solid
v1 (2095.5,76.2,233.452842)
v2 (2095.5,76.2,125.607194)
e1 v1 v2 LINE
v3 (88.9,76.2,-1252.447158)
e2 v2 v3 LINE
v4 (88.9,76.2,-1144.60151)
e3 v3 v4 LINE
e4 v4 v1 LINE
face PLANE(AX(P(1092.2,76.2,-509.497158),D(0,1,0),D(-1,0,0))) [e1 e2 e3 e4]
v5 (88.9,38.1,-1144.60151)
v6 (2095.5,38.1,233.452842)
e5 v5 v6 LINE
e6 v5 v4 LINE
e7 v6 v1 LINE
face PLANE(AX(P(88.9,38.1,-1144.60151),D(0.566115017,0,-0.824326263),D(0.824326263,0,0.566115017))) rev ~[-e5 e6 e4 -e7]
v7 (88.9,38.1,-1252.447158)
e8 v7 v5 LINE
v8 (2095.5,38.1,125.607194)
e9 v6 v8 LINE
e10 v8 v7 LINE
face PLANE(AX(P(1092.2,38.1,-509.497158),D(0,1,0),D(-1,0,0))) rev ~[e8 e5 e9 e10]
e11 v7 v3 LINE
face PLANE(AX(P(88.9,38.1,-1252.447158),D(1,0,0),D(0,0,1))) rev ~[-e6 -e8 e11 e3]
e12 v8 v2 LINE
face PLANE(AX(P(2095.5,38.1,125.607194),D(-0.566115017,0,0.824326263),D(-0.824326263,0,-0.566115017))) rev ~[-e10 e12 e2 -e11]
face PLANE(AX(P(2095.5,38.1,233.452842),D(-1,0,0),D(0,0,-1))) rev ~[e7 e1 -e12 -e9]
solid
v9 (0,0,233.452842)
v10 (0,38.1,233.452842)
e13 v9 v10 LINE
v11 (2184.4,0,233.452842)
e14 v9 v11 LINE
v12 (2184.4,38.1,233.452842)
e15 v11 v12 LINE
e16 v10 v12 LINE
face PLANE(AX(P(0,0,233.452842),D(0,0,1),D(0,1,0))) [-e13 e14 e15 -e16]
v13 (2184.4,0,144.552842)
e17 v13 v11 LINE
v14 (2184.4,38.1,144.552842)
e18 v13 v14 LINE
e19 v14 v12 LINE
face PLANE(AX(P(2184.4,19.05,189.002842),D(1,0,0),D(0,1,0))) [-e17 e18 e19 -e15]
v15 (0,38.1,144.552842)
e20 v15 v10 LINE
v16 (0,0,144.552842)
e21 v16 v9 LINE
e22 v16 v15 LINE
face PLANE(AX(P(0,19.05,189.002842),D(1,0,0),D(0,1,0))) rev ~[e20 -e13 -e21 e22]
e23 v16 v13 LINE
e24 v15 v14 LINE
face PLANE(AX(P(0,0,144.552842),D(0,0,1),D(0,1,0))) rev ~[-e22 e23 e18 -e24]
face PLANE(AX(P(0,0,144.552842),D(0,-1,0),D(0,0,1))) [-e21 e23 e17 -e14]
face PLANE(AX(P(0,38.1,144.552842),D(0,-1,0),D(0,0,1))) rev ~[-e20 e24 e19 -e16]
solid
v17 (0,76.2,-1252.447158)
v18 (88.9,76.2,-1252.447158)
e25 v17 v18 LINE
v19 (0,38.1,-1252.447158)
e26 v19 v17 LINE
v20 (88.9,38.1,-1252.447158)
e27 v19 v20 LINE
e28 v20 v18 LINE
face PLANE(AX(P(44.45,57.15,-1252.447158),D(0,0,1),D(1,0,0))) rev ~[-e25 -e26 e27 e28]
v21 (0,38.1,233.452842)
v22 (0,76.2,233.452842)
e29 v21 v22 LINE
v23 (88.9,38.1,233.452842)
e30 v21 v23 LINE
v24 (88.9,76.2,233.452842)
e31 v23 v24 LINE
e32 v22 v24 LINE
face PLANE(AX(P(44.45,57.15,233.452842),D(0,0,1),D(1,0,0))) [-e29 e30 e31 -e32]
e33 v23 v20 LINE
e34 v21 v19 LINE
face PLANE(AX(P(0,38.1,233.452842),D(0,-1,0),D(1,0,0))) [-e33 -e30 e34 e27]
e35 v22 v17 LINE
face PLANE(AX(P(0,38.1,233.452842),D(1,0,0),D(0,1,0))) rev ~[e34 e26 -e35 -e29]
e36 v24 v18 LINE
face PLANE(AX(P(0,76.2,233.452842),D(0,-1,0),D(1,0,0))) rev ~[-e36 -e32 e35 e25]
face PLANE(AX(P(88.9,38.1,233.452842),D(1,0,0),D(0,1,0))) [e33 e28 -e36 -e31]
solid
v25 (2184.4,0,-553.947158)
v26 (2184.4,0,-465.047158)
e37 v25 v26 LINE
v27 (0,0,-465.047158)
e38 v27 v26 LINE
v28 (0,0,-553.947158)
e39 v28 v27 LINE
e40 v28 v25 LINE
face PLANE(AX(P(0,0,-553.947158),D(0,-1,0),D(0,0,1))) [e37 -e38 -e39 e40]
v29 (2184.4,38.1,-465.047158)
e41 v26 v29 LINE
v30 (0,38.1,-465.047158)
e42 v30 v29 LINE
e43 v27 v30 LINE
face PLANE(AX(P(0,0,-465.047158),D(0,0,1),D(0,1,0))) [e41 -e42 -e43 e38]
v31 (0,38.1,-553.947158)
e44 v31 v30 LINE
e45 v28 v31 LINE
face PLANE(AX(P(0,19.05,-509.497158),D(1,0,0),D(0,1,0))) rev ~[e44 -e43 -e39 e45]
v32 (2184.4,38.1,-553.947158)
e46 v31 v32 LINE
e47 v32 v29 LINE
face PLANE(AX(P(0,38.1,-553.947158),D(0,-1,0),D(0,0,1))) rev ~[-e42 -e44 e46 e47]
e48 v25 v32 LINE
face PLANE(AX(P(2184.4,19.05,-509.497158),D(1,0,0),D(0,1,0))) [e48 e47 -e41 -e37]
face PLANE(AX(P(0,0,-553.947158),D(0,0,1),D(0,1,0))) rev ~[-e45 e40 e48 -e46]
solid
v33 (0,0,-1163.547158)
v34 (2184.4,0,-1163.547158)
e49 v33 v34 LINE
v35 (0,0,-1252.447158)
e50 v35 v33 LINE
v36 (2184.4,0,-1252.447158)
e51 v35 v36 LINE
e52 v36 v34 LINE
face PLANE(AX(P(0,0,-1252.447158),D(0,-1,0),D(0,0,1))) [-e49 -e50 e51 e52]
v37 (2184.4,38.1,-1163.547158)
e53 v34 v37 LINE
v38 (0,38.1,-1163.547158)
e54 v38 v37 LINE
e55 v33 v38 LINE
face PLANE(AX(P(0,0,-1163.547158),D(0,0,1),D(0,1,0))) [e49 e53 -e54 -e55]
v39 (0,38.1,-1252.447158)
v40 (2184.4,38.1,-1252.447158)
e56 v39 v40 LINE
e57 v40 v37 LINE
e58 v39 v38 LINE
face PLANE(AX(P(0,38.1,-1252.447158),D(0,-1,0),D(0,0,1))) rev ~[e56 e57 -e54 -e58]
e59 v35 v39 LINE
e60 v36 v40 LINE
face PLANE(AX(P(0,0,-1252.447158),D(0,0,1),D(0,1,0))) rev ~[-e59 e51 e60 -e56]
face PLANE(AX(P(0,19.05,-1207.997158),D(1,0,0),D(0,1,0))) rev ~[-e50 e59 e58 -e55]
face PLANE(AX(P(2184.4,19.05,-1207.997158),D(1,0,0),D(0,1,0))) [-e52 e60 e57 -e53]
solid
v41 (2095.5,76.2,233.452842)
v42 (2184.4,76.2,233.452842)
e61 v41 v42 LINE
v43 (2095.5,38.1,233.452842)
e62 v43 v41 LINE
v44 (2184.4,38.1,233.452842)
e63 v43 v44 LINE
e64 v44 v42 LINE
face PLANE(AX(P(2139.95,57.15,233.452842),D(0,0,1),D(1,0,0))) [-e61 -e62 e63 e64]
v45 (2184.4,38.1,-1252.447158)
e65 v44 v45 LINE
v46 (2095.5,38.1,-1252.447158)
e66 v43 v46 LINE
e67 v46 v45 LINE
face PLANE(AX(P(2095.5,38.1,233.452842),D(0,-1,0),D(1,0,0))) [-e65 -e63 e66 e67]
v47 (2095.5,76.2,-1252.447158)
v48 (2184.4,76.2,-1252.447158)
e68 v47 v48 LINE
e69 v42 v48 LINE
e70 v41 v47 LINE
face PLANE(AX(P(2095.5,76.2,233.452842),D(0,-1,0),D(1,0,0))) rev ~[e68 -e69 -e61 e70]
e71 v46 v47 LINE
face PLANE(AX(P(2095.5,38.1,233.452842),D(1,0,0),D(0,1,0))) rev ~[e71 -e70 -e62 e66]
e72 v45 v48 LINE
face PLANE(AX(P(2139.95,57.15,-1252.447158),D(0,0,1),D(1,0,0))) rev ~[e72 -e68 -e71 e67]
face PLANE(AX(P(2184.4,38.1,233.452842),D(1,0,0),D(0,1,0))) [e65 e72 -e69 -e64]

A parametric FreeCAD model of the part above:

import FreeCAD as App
import Part
import Sketcher
Q = App.Units.Quantity

doc = App.newDocument("Part")
body = doc.addObject("PartDesign::Body", "Body")
body.AllowCompound = True

# Sketch on YZ plane
sketch1 = body.newObject("Sketcher::SketchObject", "Sketch")
sketch1.AttachmentSupport = (doc.getObject("YZ_Plane"), [""])
sketch1.MapMode = "FlatFace"
sketch1.addGeometry([
    Part.LineSegment(App.Vector(0, 233, 0), App.Vector(0, 145, 0)),  # 0
    Part.LineSegment(App.Vector(0, 145, 0), App.Vector(38, 145, 0)),  # 1
    Part.LineSegment(App.Vector(38, 145, 0), App.Vector(38, 233, 0)),  # 2
    Part.LineSegment(App.Vector(38, 233, 0), App.Vector(0, 233, 0)),  # 3
    Part.LineSegment(App.Vector(0, -465, 0), App.Vector(0, -554, 0)),  # 4
    Part.LineSegment(App.Vector(0, -554, 0), App.Vector(38, -554, 0)),  # 5
    Part.LineSegment(App.Vector(38, -554, 0), App.Vector(38, -465, 0)),  # 6
    Part.LineSegment(App.Vector(38, -465, 0), App.Vector(0, -465, 0)),  # 7
    Part.LineSegment(App.Vector(0, -1164, 0), App.Vector(0, -1252, 0)),  # 8
    Part.LineSegment(App.Vector(0, -1252, 0), App.Vector(38, -1252, 0)),  # 9
    Part.LineSegment(App.Vector(38, -1252, 0), App.Vector(38, -1164, 0)),  # 10
    Part.LineSegment(App.Vector(38, -1164, 0), App.Vector(0, -1164, 0)),  # 11
], False)
sketch1.addConstraint([
    Sketcher.Constraint("Coincident", 0, 2, 1, 1),
    Sketcher.Constraint("Coincident", 1, 2, 2, 1),
    Sketcher.Constraint("Coincident", 2, 2, 3, 1),
    Sketcher.Constraint("Coincident", 3, 2, 0, 1),
    Sketcher.Constraint("Coincident", 4, 2, 5, 1),
    Sketcher.Constraint("Coincident", 5, 2, 6, 1),
    Sketcher.Constraint("Coincident", 6, 2, 7, 1),
    Sketcher.Constraint("Coincident", 7, 2, 4, 1),
    Sketcher.Constraint("Coincident", 8, 2, 9, 1),
    Sketcher.Constraint("Coincident", 9, 2, 10, 1),
    Sketcher.Constraint("Coincident", 10, 2, 11, 1),
    Sketcher.Constraint("Coincident", 11, 2, 8, 1),
    Sketcher.Constraint("Vertical", 0),
    Sketcher.Constraint("Horizontal", 1),
    Sketcher.Constraint("Vertical", 2),
    Sketcher.Constraint("Horizontal", 3),
    Sketcher.Constraint("Vertical", 4),
    Sketcher.Constraint("Horizontal", 5),
    Sketcher.Constraint("Vertical", 6),
    Sketcher.Constraint("Horizontal", 7),
    Sketcher.Constraint("Vertical", 8),
    Sketcher.Constraint("Horizontal", 9),
    Sketcher.Constraint("Vertical", 10),
    Sketcher.Constraint("Horizontal", 11),
    Sketcher.Constraint("PointOnObject", 0, 2, -2),
    Sketcher.Constraint("PointOnObject", 4, 2, -2),
    Sketcher.Constraint("PointOnObject", 8, 2, -2),
    Sketcher.Constraint("Vertical", 2, 2, 5, 2),
    Sketcher.Constraint("Vertical", 6, 2, 9, 2),
    Sketcher.Constraint("Equal", 2, 4),
    Sketcher.Constraint("Equal", 6, 8),
    Sketcher.Constraint("DistanceX", 1, 1, 1, 2, Q("1.5 in")),
    Sketcher.Constraint("DistanceY", 0, 2, 0, 1, Q("3.5 in")),
    Sketcher.Constraint("DistanceY", 4, 2, 3, 2, Q("31 in")),
    Sketcher.Constraint("DistanceY", 8, 2, 7, 2, Q("31 in")),
    Sketcher.Constraint("DistanceY", -1, 1, 0, 2, Q("144.552842 mm")),
])
pad1 = body.newObject("PartDesign::Pad", "Pad")
pad1.Profile = sketch1
pad1.Length = Q("86 in")
body2 = doc.addObject("PartDesign::Body", "Body001")
body2.AllowCompound = True

# Sketch on XY plane
sketch2 = body2.newObject("Sketcher::SketchObject", "Sketch001")
sketch2.AttachmentSupport = (doc.getObject("XY_Plane001"), [""])
sketch2.MapMode = "FlatFace"
sketch2.AttachmentOffset = App.Placement(App.Vector(0, 0, 233.452842), App.Rotation())
sketch2.addGeometry([
    Part.LineSegment(App.Vector(2096, 76, 0), App.Vector(2096, 38, 0)),  # 0
    Part.LineSegment(App.Vector(2096, 38, 0), App.Vector(2184, 38, 0)),  # 1
    Part.LineSegment(App.Vector(2184, 38, 0), App.Vector(2184, 76, 0)),  # 2
    Part.LineSegment(App.Vector(2184, 76, 0), App.Vector(2096, 76, 0)),  # 3
    Part.LineSegment(App.Vector(0, 76, 0), App.Vector(0, 38, 0)),  # 4
    Part.LineSegment(App.Vector(0, 38, 0), App.Vector(89, 38, 0)),  # 5
    Part.LineSegment(App.Vector(89, 38, 0), App.Vector(89, 76, 0)),  # 6
    Part.LineSegment(App.Vector(89, 76, 0), App.Vector(0, 76, 0)),  # 7
], False)
sketch2.addConstraint([
    Sketcher.Constraint("Coincident", 0, 2, 1, 1),
    Sketcher.Constraint("Coincident", 1, 2, 2, 1),
    Sketcher.Constraint("Coincident", 2, 2, 3, 1),
    Sketcher.Constraint("Coincident", 3, 2, 0, 1),
    Sketcher.Constraint("Coincident", 4, 2, 5, 1),
    Sketcher.Constraint("Coincident", 5, 2, 6, 1),
    Sketcher.Constraint("Coincident", 6, 2, 7, 1),
    Sketcher.Constraint("Coincident", 7, 2, 4, 1),
    Sketcher.Constraint("Vertical", 0),
    Sketcher.Constraint("Horizontal", 1),
    Sketcher.Constraint("Vertical", 2),
    Sketcher.Constraint("Horizontal", 3),
    Sketcher.Constraint("Vertical", 4),
    Sketcher.Constraint("Horizontal", 5),
    Sketcher.Constraint("Vertical", 6),
    Sketcher.Constraint("Horizontal", 7),
    Sketcher.Constraint("PointOnObject", 4, 2, -2),
    Sketcher.Constraint("Horizontal", 1, 2, 4, 2),
    Sketcher.Constraint("Horizontal", 3, 2, 6, 2),
    Sketcher.Constraint("Equal", 3, 5),
    Sketcher.Constraint("DistanceX", 1, 1, 1, 2, Q("3.5 in")),
    Sketcher.Constraint("DistanceY", 0, 2, 0, 1, Q("1.5 in")),
    Sketcher.Constraint("DistanceX", -1, 1, 1, 2, Q("86 in")),
    Sketcher.Constraint("DistanceY", -1, 1, 2, 2, Q("3 in")),
])
pad2 = body2.newObject("PartDesign::Pad", "Pad001")
pad2.Profile = sketch2
pad2.Length = Q("58.5 in")
pad2.Reversed = True
body3 = doc.addObject("PartDesign::Body", "Body002")

# Sketch on XZ plane
sketch3 = body3.newObject("Sketcher::SketchObject", "Sketch002")
sketch3.AttachmentSupport = (doc.getObject("XZ_Plane002"), [""])
sketch3.MapMode = "FlatFace"
sketch3.AttachmentOffset = App.Placement(App.Vector(0, 0, -1.5 * 25.4), App.Rotation())
sketch3.addGeometry([
    Part.LineSegment(App.Vector(89, -1145, 0), App.Vector(2096, 233, 0)),
    Part.LineSegment(App.Vector(2096, 233, 0), App.Vector(2096, 126, 0)),
    Part.LineSegment(App.Vector(2096, 126, 0), App.Vector(89, -1252, 0)),
    Part.LineSegment(App.Vector(89, -1252, 0), App.Vector(89, -1145, 0)),
], False)
sketch3.addConstraint([
    Sketcher.Constraint("Coincident", 0, 2, 1, 1),
    Sketcher.Constraint("Coincident", 1, 2, 2, 1),
    Sketcher.Constraint("Coincident", 2, 2, 3, 1),
    Sketcher.Constraint("Coincident", 3, 2, 0, 1),
    Sketcher.Constraint("Vertical", 1),
    Sketcher.Constraint("Vertical", 3),
    Sketcher.Constraint("Parallel", 0, 2),
    Sketcher.Constraint("DistanceX", 2, 2, 1, 2, Q("79 in")),
    Sketcher.Constraint("DistanceX", -1, 1, 0, 2, Q("82.5 in")),
    Sketcher.Constraint("DistanceY", 2, 2, 0, 2, Q("58.5 in")),
    Sketcher.Constraint("Distance", 0, Q("2434.230342 mm")),
    Sketcher.Constraint("DistanceY", -1, 1, 0, 2, Q("233.452842 mm")),
])
pad3 = body3.newObject("PartDesign::Pad", "Pad002")
pad3.Profile = sketch3
pad3.Length = Q("1.5 in")
pad3.Reversed = True

doc.recompute()
